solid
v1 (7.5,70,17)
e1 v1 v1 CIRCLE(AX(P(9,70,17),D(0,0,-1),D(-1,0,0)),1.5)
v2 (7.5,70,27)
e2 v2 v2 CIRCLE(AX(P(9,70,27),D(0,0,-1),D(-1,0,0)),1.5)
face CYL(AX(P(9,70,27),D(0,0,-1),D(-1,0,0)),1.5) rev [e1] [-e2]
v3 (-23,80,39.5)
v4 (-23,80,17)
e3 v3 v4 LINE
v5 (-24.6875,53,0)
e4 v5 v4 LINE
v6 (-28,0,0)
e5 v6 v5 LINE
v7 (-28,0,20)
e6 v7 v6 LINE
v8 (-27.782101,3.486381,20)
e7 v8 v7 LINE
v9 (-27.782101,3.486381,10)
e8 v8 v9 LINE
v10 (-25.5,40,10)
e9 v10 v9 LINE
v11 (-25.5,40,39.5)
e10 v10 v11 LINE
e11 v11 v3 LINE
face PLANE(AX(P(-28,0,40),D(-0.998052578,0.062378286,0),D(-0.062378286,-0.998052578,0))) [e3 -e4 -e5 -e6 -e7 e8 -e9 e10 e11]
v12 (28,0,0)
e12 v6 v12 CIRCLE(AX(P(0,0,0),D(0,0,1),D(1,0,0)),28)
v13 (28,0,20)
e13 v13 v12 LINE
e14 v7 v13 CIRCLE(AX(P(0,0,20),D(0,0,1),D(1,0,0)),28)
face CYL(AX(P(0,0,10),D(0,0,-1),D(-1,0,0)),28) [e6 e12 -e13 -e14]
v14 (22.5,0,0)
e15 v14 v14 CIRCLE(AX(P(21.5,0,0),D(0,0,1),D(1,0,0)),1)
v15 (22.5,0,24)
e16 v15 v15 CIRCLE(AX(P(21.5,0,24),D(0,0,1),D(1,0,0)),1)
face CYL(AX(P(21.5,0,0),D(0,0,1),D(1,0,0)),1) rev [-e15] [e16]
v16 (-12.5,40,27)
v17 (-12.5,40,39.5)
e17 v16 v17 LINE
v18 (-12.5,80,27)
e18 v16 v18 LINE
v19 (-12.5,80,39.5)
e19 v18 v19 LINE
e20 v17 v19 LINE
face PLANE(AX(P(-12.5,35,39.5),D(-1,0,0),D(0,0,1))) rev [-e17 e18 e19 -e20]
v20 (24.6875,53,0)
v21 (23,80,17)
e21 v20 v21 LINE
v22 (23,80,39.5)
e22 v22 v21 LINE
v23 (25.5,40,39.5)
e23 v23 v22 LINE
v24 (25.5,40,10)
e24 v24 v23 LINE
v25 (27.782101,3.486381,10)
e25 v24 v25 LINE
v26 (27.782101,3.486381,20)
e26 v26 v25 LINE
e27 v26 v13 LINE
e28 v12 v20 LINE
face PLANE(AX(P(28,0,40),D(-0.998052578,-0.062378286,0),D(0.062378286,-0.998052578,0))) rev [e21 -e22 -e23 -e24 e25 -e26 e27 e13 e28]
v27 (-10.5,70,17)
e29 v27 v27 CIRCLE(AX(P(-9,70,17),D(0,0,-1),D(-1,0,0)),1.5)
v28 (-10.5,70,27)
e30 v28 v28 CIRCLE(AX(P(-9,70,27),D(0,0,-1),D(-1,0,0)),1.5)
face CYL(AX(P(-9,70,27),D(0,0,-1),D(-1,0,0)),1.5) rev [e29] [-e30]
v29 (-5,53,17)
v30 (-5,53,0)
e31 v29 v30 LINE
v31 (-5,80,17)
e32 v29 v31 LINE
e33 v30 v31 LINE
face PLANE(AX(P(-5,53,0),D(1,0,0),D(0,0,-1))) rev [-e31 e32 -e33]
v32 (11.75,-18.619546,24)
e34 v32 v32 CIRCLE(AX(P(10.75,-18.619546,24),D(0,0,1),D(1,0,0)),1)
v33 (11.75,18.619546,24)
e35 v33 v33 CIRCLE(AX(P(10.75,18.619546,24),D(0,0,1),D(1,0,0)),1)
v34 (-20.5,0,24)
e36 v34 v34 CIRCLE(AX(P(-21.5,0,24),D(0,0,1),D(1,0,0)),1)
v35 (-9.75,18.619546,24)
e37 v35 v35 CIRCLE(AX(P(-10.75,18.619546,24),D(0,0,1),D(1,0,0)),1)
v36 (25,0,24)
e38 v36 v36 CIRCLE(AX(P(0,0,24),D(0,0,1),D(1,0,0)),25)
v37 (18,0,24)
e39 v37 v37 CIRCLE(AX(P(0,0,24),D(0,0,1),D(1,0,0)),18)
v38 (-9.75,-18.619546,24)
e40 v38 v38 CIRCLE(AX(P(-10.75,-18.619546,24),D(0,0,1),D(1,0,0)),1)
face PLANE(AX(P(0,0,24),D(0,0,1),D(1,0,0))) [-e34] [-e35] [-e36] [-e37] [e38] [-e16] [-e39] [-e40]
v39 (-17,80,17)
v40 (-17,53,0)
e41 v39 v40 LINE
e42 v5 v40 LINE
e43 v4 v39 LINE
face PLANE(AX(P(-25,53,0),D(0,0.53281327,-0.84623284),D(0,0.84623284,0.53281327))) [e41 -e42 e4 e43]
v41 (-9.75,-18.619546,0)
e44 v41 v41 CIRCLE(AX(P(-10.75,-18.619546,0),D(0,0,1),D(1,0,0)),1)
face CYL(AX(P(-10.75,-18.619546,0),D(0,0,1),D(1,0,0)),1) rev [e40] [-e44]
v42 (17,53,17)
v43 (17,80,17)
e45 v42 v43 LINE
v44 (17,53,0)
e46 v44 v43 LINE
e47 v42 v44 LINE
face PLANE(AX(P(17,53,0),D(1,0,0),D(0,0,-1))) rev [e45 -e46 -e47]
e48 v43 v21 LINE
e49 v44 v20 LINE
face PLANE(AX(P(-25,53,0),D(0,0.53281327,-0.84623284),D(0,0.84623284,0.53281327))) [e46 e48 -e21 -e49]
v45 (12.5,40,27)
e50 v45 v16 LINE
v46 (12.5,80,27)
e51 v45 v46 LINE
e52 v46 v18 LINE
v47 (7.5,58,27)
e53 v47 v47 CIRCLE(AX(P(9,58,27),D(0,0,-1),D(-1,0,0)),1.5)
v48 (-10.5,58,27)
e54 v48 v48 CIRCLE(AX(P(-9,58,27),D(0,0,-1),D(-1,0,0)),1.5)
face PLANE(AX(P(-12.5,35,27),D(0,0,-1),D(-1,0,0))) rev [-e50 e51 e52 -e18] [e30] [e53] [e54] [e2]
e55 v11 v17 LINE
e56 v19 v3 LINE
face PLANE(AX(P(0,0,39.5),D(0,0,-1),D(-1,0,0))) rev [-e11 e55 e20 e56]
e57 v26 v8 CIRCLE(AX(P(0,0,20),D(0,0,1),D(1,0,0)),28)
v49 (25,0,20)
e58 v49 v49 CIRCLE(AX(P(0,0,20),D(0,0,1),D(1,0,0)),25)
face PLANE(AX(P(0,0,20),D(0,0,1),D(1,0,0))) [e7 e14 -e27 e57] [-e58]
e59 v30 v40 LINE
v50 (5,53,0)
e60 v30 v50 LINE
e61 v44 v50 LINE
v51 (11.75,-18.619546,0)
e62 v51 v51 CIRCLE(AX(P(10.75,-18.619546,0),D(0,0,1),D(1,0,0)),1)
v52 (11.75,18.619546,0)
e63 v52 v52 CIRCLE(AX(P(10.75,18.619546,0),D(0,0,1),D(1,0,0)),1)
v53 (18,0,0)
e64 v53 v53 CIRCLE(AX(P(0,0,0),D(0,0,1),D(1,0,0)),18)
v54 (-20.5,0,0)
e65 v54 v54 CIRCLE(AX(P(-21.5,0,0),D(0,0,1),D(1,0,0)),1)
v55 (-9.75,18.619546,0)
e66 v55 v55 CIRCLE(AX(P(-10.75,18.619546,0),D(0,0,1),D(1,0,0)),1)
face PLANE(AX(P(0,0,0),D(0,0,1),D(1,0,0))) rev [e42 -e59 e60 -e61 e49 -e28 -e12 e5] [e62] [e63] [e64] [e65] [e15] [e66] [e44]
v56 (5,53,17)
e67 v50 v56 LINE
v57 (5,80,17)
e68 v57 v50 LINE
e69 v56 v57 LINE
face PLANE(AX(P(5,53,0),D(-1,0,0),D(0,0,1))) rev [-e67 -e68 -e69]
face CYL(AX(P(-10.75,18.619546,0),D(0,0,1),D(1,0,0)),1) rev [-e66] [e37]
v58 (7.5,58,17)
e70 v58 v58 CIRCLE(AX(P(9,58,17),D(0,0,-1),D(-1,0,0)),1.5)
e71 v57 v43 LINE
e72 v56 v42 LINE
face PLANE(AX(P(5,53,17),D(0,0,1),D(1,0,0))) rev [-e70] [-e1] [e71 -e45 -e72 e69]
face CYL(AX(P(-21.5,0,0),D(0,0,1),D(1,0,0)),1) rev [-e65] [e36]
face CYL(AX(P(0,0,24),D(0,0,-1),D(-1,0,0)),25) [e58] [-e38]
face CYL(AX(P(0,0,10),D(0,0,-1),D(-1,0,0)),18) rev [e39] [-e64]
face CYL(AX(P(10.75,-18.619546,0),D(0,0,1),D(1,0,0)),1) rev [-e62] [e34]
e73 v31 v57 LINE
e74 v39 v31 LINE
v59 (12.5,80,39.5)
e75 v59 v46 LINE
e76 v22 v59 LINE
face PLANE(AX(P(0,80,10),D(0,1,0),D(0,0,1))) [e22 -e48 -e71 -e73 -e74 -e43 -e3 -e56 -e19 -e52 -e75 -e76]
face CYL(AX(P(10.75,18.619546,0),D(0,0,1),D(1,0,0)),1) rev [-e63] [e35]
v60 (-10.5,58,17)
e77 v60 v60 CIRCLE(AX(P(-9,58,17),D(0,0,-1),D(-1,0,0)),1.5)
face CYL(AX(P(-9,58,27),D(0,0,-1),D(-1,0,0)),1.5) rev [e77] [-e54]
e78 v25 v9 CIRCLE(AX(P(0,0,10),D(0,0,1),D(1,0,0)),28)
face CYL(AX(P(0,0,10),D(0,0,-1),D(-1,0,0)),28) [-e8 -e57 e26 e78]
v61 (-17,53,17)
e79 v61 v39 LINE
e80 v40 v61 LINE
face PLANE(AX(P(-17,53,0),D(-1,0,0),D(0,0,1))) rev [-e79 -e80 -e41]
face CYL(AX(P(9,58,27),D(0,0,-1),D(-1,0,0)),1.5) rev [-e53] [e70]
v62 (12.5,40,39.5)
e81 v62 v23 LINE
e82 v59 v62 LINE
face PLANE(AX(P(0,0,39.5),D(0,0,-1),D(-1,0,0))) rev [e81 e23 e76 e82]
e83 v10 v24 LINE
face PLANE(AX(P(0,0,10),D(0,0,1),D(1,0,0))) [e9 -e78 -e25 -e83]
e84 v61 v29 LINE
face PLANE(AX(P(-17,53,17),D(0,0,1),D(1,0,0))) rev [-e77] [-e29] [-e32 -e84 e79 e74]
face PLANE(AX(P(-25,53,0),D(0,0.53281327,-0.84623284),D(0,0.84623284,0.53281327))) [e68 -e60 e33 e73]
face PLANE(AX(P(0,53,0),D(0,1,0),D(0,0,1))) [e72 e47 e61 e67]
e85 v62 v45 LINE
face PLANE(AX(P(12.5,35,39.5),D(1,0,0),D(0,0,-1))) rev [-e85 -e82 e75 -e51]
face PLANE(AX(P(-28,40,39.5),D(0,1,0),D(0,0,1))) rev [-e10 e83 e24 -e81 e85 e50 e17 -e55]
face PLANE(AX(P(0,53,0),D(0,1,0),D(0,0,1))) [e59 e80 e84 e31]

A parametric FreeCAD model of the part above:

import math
import FreeCAD as App
import Part
import Sketcher

V = App.Vector
Q = App.Units.Quantity

doc = App.newDocument("Part")
body = doc.addObject("PartDesign::Body", "Body")

# Sketch on XY plane
sketch1 = body.newObject("Sketcher::SketchObject", "Sketch")
sketch1.AttachmentSupport = (doc.getObject("XY_Plane"), [""])
sketch1.MapMode = "FlatFace"
sketch1.addGeometry([
    Part.ArcOfCircle(Part.Circle(V(0, 0, 0), V(0, 0, 1), 28), math.radians(180), math.radians(360)),  # 0
    Part.LineSegment(V(28, 0, 0), V(28, 80, 0)),  # 1
    Part.LineSegment(V(28, 80, 0), V(-28, 80, 0)),  # 2
    Part.LineSegment(V(-28, 80, 0), V(-28, 0, 0)),  # 3
    Part.Circle(V(0, 0, 0), V(0, 0, 1), 18),  # 4
], False)
sketch1.addConstraint([
    Sketcher.Constraint("Tangent", 0, 2, 1, 1),
    Sketcher.Constraint("Coincident", 1, 2, 2, 1),
    Sketcher.Constraint("Coincident", 2, 2, 3, 1),
    Sketcher.Constraint("Tangent", 3, 2, 0, 1),
    Sketcher.Constraint("Vertical", 1),
    Sketcher.Constraint("Horizontal", 2),
    Sketcher.Constraint("Vertical", 3),
    Sketcher.Constraint("Coincident", 0, 3, -1, 1),
    Sketcher.Constraint("Coincident", 4, 3, -1, 1),
    Sketcher.Constraint("Diameter", 4, Q("36 mm")),
    Sketcher.Constraint("Radius", 0, Q("28 mm")),
    Sketcher.Constraint("DistanceY", 1, 1, 1, 2, Q("80 mm")),
])
pad1 = body.newObject("PartDesign::Pad", "Pad")
pad1.Profile = sketch1
pad1.Length = 10

# Sketch on XY plane
sketch2 = body.newObject("Sketcher::SketchObject", "Sketch001")
sketch2.AttachmentSupport = (doc.getObject("XY_Plane"), [""])
sketch2.MapMode = "FlatFace"
sketch2.AttachmentOffset = App.Placement(V(0, 0, 10), App.Rotation())
sketch2.addGeometry([
    Part.Circle(V(0, 0, 0), V(0, 0, 1), 28),
    Part.Circle(V(0, 0, 0), V(0, 0, 1), 18),
], False)
sketch2.addConstraint([
    Sketcher.Constraint("Coincident", 0, 3, -1, 1),
    Sketcher.Constraint("Coincident", 1, 3, -1, 1),
    Sketcher.Constraint("Diameter", 0, Q("56 mm")),
    Sketcher.Constraint("Diameter", 1, Q("36 mm")),
])
pad2 = body.newObject("PartDesign::Pad", "Pad001")
pad2.Profile = sketch2
pad2.Length = 10

# Sketch on XY plane
sketch3 = body.newObject("Sketcher::SketchObject", "Sketch002")
sketch3.AttachmentSupport = (doc.getObject("XY_Plane"), [""])
sketch3.MapMode = "FlatFace"
sketch3.AttachmentOffset = App.Placement(V(0, 0, 20), App.Rotation())
sketch3.addGeometry([
    Part.Circle(V(0, 0, 0), V(0, 0, 1), 25),
    Part.Circle(V(0, 0, 0), V(0, 0, 1), 18),
], False)
sketch3.addConstraint([
    Sketcher.Constraint("Coincident", 0, 3, -1, 1),
    Sketcher.Constraint("Coincident", 1, 3, -1, 1),
    Sketcher.Constraint("Diameter", 0, Q("50 mm")),
    Sketcher.Constraint("Diameter", 1, Q("36 mm")),
])
pad3 = body.newObject("PartDesign::Pad", "Pad002")
pad3.Profile = sketch3
pad3.Length = 4

# Sketch on XY plane
sketch4 = body.newObject("Sketcher::SketchObject", "Sketch003")
sketch4.AttachmentSupport = (doc.getObject("XY_Plane"), [""])
sketch4.MapMode = "FlatFace"
sketch4.AttachmentOffset = App.Placement(V(0, 0, 24), App.Rotation())
sketch4.addGeometry([
    Part.Circle(V(-10.8, 18.6, 0), V(0, 0, 1), 1),  # 0
    Part.Circle(V(10.8, 18.6, 0), V(0, 0, 1), 1),  # 1
    Part.Circle(V(21.5, 0, 0), V(0, 0, 1), 1),  # 2
    Part.Circle(V(10.8, -18.6, 0), V(0, 0, 1), 1),  # 3
    Part.Circle(V(-10.8, -18.6, 0), V(0, 0, 1), 1),  # 4
    Part.Circle(V(-21.5, 0, 0), V(0, 0, 1), 1),  # 5
], False)
sketch4.addConstraint([
    Sketcher.Constraint("Equal", 0, 1),
    Sketcher.Constraint("Equal", 1, 2),
    Sketcher.Constraint("Equal", 2, 3),
    Sketcher.Constraint("Equal", 3, 4),
    Sketcher.Constraint("Equal", 4, 5),
    Sketcher.Constraint("Symmetric", 0, 3, 3, 3, -1, 1),
    Sketcher.Constraint("Symmetric", 1, 3, 4, 3, -1, 1),
    Sketcher.Constraint("Symmetric", 2, 3, 5, 3, -1, 1),
    Sketcher.Constraint("Symmetric", 0, 3, 1, 3, -2),
    Sketcher.Constraint("PointOnObject", 2, 3, -1),
    Sketcher.Constraint("Diameter", 0, Q("2 mm")),
    Sketcher.Constraint("DistanceX", 5, 3, 2, 3, Q("43 mm")),
    Sketcher.Constraint("DistanceX", 0, 3, 1, 3, Q("21.5 mm")),
    Sketcher.Constraint("DistanceY", -1, 1, 0, 3, Q("18.619546 mm")),
])
pocket1 = body.newObject("PartDesign::Pocket", "Pocket")
pocket1.Profile = sketch4
pocket1.Length = 24

# Sketch on XY plane
sketch5 = body.newObject("Sketcher::SketchObject", "Sketch004")
sketch5.AttachmentSupport = (doc.getObject("XY_Plane"), [""])
sketch5.MapMode = "FlatFace"
sketch5.AttachmentOffset = App.Placement(V(0, 0, 10), App.Rotation())
sketch5.addGeometry([
    Part.LineSegment(V(-28, 80, 0), V(-28, 40, 0)),
    Part.LineSegment(V(-28, 40, 0), V(28, 40, 0)),
    Part.LineSegment(V(28, 40, 0), V(28, 80, 0)),
    Part.LineSegment(V(28, 80, 0), V(-28, 80, 0)),
], False)
sketch5.addConstraint([
    Sketcher.Constraint("Coincident", 0, 2, 1, 1),
    Sketcher.Constraint("Coincident", 1, 2, 2, 1),
    Sketcher.Constraint("Coincident", 2, 2, 3, 1),
    Sketcher.Constraint("Coincident", 3, 2, 0, 1),
    Sketcher.Constraint("Vertical", 0),
    Sketcher.Constraint("Horizontal", 1),
    Sketcher.Constraint("Vertical", 2),
    Sketcher.Constraint("Horizontal", 3),
    Sketcher.Constraint("DistanceX", 1, 1, 1, 2, Q("56 mm")),
    Sketcher.Constraint("DistanceY", 0, 2, 0, 1, Q("40 mm")),
    Sketcher.Constraint("DistanceX", 0, 2, -1, 1, Q("28 mm")),
    Sketcher.Constraint("DistanceY", -1, 1, 0, 2, Q("40 mm")),
])
pad4 = body.newObject("PartDesign::Pad", "Pad003")
pad4.Profile = sketch5
pad4.Length = 29.5

# Sketch on XZ plane
sketch6 = body.newObject("Sketcher::SketchObject", "Sketch005")
sketch6.AttachmentSupport = (doc.getObject("XZ_Plane"), [""])
sketch6.MapMode = "FlatFace"
sketch6.AttachmentOffset = App.Placement(V(0, 0, -80), App.Rotation())
sketch6.addGeometry([
    Part.LineSegment(V(-12, 27, 0), V(-12, 40, 0)),
    Part.LineSegment(V(-12, 40, 0), V(12, 40, 0)),
    Part.LineSegment(V(12, 40, 0), V(12, 27, 0)),
    Part.LineSegment(V(12, 27, 0), V(-12, 27, 0)),
], False)
sketch6.addConstraint([
    Sketcher.Constraint("Coincident", 0, 2, 1, 1),
    Sketcher.Constraint("Coincident", 1, 2, 2, 1),
    Sketcher.Constraint("Coincident", 2, 2, 3, 1),
    Sketcher.Constraint("Coincident", 3, 2, 0, 1),
    Sketcher.Constraint("Vertical", 0),
    Sketcher.Constraint("Horizontal", 1),
    Sketcher.Constraint("Vertical", 2),
    Sketcher.Constraint("Horizontal", 3),
    Sketcher.Constraint("DistanceX", 1, 1, 1, 2, Q("25 mm")),
    Sketcher.Constraint("DistanceY", 0, 1, 0, 2, Q("12.5 mm")),
    Sketcher.Constraint("DistanceY", -1, 1, 2, 2, Q("27 mm")),
    Sketcher.Constraint("DistanceX", 0, 2, -1, 1, Q("12.5 mm")),
])
pocket2 = body.newObject("PartDesign::Pocket", "Pocket001")
pocket2.Profile = sketch6
pocket2.Length = 45
pocket2.Reversed = True

# Sketch on XZ plane
sketch7 = body.newObject("Sketcher::SketchObject", "Sketch006")
sketch7.AttachmentSupport = (doc.getObject("XZ_Plane"), [""])
sketch7.MapMode = "FlatFace"
sketch7.AttachmentOffset = App.Placement(V(0, 0, -80), App.Rotation())
sketch7.addGeometry([
    Part.LineSegment(V(5, 0, 0), V(5, 17, 0)),  # 0
    Part.LineSegment(V(5, 17, 0), V(17, 17, 0)),  # 1
    Part.LineSegment(V(17, 17, 0), V(17, 0, 0)),  # 2
    Part.LineSegment(V(17, 0, 0), V(5, 0, 0)),  # 3
    Part.LineSegment(V(-17, 0, 0), V(-17, 17, 0)),  # 4
    Part.LineSegment(V(-17, 17, 0), V(-5, 17, 0)),  # 5
    Part.LineSegment(V(-5, 17, 0), V(-5, 0, 0)),  # 6
    Part.LineSegment(V(-5, 0, 0), V(-17, 0, 0)),  # 7
], False)
sketch7.addConstraint([
    Sketcher.Constraint("Coincident", 0, 2, 1, 1),
    Sketcher.Constraint("Coincident", 1, 2, 2, 1),
    Sketcher.Constraint("Coincident", 2, 2, 3, 1),
    Sketcher.Constraint("Coincident", 3, 2, 0, 1),
    Sketcher.Constraint("Coincident", 4, 2, 5, 1),
    Sketcher.Constraint("Coincident", 5, 2, 6, 1),
    Sketcher.Constraint("Coincident", 6, 2, 7, 1),
    Sketcher.Constraint("Coincident", 7, 2, 4, 1),
    Sketcher.Constraint("Vertical", 0),
    Sketcher.Constraint("Horizontal", 1),
    Sketcher.Constraint("Vertical", 2),
    Sketcher.Constraint("Horizontal", 3),
    Sketcher.Constraint("Vertical", 4),
    Sketcher.Constraint("Horizontal", 5),
    Sketcher.Constraint("Vertical", 6),
    Sketcher.Constraint("Horizontal", 7),
    Sketcher.Constraint("Symmetric", 3, 2, 6, 2, -1, 1),
    Sketcher.Constraint("Symmetric", 1, 2, 4, 2, -2),
    Sketcher.Constraint("PointOnObject", 2, 2, -1),
    Sketcher.Constraint("DistanceX", 1, 1, 1, 2, Q("12 mm")),
    Sketcher.Constraint("DistanceY", 0, 1, 0, 2, Q("17 mm")),
    Sketcher.Constraint("DistanceX", -1, 1, 0, 2, Q("5 mm")),
])
pocket3 = body.newObject("PartDesign::Pocket", "Pocket002")
pocket3.Profile = sketch7
pocket3.Length = 27
pocket3.Reversed = True

# Sketch on YZ plane
sketch8 = body.newObject("Sketcher::SketchObject", "Sketch007")
sketch8.AttachmentSupport = (doc.getObject("YZ_Plane"), [""])
sketch8.MapMode = "FlatFace"
sketch8.AttachmentOffset = App.Placement(V(0, 0, 17), App.Rotation())
sketch8.addGeometry([
    Part.LineSegment(V(53, 0, 0), V(80, 17, 0)),
    Part.LineSegment(V(80, 17, 0), V(80, 0, 0)),
    Part.LineSegment(V(80, 0, 0), V(53, 0, 0)),
], False)
sketch8.addConstraint([
    Sketcher.Constraint("Coincident", 0, 2, 1, 1),
    Sketcher.Constraint("Coincident", 1, 2, 2, 1),
    Sketcher.Constraint("Coincident", 2, 2, 0, 1),
    Sketcher.Constraint("Vertical", 1),
    Sketcher.Constraint("Horizontal", 2),
    Sketcher.Constraint("PointOnObject", 1, 2, -1),
    Sketcher.Constraint("DistanceX", 2, 2, 2, 1, Q("27 mm")),
    Sketcher.Constraint("DistanceY", 1, 2, 1, 1, Q("17 mm")),
    Sketcher.Constraint("DistanceX", -1, 1, 0, 2, Q("80 mm")),
])
pocket4 = body.newObject("PartDesign::Pocket", "Pocket003")
pocket4.Profile = sketch8
pocket4.Type = "TwoLengths"
pocket4.Length = 42
pocket4.Length2 = 16

# Sketch on XY plane
sketch9 = body.newObject("Sketcher::SketchObject", "Sketch008")
sketch9.AttachmentSupport = (doc.getObject("XY_Plane"), [""])
sketch9.MapMode = "FlatFace"
sketch9.addGeometry([
    Part.LineSegment(V(-28, 0, 0), V(-28, 80, 0)),
    Part.LineSegment(V(-28, 80, 0), V(-23, 80, 0)),
    Part.LineSegment(V(-23, 80, 0), V(-28, 0, 0)),
], False)
sketch9.addConstraint([
    Sketcher.Constraint("Coincident", 0, 2, 1, 1),
    Sketcher.Constraint("Coincident", 1, 2, 2, 1),
    Sketcher.Constraint("Coincident", 2, 2, 0, 1),
    Sketcher.Constraint("Vertical", 0),
    Sketcher.Constraint("Horizontal", 1),
    Sketcher.Constraint("PointOnObject", 2, 2, -1),
    Sketcher.Constraint("DistanceX", 1, 1, 1, 2, Q("5 mm")),
    Sketcher.Constraint("DistanceY", 0, 1, 0, 2, Q("80 mm")),
    Sketcher.Constraint("DistanceX", 0, 2, -1, 1, Q("28 mm")),
])
pocket5 = body.newObject("PartDesign::Pocket", "Pocket004")
pocket5.Profile = sketch9
pocket5.Length = 40
pocket5.Reversed = True
doc.recompute()

mirrored = body.newObject("PartDesign::Mirrored", "Mirrored")
mirrored.Originals = [pocket5]
mirrored.MirrorPlane = (doc.getObject("YZ_Plane"), [""])
body.Tip = mirrored

# Sketch on XY plane
sketch10 = body.newObject("Sketcher::SketchObject", "Sketch009")
sketch10.AttachmentSupport = (doc.getObject("XY_Plane"), [""])
sketch10.MapMode = "FlatFace"
sketch10.AttachmentOffset = App.Placement(V(0, 0, 17), App.Rotation())
sketch10.addGeometry([
    Part.Circle(V(9, 70, 0), V(0, 0, 1), 1.5),
    Part.Circle(V(9, 58, 0), V(0, 0, 1), 1.5),
    Part.Circle(V(-9, 70, 0), V(0, 0, 1), 1.5),
    Part.Circle(V(-9, 58, 0), V(0, 0, 1), 1.5),
], False)
sketch10.addConstraint([
    Sketcher.Constraint("Equal", 0, 1),
    Sketcher.Constraint("Equal", 1, 2),
    Sketcher.Constraint("Equal", 2, 3),
    Sketcher.Constraint("Symmetric", 0, 3, 2, 3, -2),
    Sketcher.Constraint("Symmetric", 1, 3, 3, 3, -2),
    Sketcher.Constraint("Vertical", 0, 3, 1, 3),
    Sketcher.Constraint("Diameter", 0, Q("3 mm")),
    Sketcher.Constraint("DistanceX", -1, 1, 0, 3, Q("9 mm")),
    Sketcher.Constraint("DistanceY", -1, 1, 0, 3, Q("70 mm")),
    Sketcher.Constraint("DistanceY", -1, 1, 1, 3, Q("58 mm")),
])
pocket6 = body.newObject("PartDesign::Pocket", "Pocket005")
pocket6.Profile = sketch10
pocket6.Length = 10
pocket6.Reversed = True

doc.recompute()
